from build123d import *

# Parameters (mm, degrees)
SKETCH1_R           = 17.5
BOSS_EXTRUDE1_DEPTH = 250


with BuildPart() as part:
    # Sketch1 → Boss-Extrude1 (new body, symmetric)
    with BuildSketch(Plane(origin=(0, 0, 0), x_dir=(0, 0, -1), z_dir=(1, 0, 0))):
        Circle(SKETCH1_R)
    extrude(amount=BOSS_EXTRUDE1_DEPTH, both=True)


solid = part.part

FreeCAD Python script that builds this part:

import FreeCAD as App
import Part
import Sketcher
from FreeCAD import Vector
Q = App.Units.Quantity

doc = App.newDocument("Part")
body = doc.addObject("PartDesign::Body", "Body")

# Sketch on YZ plane
sketch1 = doc.addObject("Sketcher::SketchObject", "Sketch")
body.addObject(sketch1)
sketch1.AttachmentSupport = (doc.YZ_Plane, [""])
sketch1.MapMode = "FlatFace"
sketch1.addGeometry(Part.Circle(Vector(0, 0, 0), Vector(0, 0, 1), 18), False)
sketch1.addConstraint(Sketcher.Constraint("Coincident", 0, 3, -1, 1))
sketch1.addConstraint(Sketcher.Constraint("Diameter", 0, Q("35 mm")))
pad1 = doc.addObject("PartDesign::Pad", "Pad")
body.addObject(pad1)
pad1.Profile = sketch1
pad1.Length = 500
pad1.Midplane = True

doc.recompute()
